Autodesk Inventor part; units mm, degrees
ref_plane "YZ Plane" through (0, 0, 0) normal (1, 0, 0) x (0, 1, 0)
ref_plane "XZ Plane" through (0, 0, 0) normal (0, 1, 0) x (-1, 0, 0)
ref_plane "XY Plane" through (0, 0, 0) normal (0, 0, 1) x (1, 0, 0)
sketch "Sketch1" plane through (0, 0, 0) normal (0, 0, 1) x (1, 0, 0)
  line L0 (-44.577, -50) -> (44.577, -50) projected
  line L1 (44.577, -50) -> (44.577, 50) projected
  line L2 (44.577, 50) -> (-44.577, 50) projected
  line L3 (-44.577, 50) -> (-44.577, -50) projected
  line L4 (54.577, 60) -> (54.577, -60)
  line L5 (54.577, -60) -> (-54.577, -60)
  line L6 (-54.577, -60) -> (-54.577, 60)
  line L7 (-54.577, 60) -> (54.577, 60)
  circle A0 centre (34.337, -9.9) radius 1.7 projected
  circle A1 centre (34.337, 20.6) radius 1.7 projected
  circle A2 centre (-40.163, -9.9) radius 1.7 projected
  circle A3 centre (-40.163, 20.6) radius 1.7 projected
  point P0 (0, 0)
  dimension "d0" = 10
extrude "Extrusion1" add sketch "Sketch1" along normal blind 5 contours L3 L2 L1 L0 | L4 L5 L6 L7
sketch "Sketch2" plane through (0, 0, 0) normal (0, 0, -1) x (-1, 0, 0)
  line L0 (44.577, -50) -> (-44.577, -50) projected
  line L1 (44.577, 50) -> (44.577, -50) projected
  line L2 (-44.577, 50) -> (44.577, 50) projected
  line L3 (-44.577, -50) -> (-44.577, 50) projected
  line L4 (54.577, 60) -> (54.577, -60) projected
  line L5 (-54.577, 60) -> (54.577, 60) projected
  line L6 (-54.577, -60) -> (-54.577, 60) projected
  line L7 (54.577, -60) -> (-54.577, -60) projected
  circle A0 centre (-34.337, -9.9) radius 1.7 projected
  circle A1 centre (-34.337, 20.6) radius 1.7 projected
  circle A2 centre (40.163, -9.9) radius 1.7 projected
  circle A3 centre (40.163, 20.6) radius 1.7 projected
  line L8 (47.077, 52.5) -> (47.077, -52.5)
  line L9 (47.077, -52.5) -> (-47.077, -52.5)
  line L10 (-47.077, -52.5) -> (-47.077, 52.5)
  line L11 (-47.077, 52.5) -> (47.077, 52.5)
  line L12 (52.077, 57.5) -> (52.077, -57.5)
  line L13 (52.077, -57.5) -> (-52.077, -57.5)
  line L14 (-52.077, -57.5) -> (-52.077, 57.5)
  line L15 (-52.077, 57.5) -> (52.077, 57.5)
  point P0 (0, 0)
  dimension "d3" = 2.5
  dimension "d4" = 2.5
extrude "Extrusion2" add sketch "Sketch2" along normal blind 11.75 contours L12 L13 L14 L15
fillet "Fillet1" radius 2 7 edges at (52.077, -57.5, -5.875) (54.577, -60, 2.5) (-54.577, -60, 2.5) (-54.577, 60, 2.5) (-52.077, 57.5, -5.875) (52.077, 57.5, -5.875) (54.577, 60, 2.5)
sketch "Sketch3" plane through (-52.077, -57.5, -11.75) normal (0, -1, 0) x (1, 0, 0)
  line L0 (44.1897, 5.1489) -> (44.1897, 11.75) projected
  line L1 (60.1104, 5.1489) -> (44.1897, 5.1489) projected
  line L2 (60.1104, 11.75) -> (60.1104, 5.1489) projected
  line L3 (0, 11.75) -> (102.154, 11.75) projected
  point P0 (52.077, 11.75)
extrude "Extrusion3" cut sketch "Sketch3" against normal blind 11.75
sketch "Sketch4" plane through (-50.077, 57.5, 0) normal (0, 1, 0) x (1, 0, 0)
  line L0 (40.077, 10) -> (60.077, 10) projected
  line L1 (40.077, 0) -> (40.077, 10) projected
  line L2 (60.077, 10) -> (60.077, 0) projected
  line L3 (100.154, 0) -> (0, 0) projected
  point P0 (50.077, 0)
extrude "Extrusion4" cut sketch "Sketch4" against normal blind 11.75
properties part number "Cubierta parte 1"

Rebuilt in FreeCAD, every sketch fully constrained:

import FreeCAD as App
import Part
import Sketcher
from FreeCAD import Vector


def edges_at(feature, points):
    """Names of the edges that pass closest to the given points."""
    edges = feature.Shape.Edges
    near = lambda p: min(range(len(edges)), key=lambda i: edges[i].distToShape(Part.Vertex(*p))[0])
    return sorted({f"Edge{near(p) + 1}" for p in points})


def add_polygon(sketch, points):
    """Adds a closed chain of lines whose ends are joined by coincident constraints."""
    first, n = sketch.GeometryCount, len(points)
    for a, b in zip(points, points[1:] + points[:1]):
        sketch.addGeometry(Part.LineSegment(App.Vector(*a, 0), App.Vector(*b, 0)), False)
    for i in range(n):
        sketch.addConstraint(Sketcher.Constraint("Coincident", first + i, 2, first + (i + 1) % n, 1))

doc = App.newDocument("Part")
body = doc.addObject("PartDesign::Body", "Body")

# Sketch on XY plane
sketch1 = body.newObject("Sketcher::SketchObject", "Sketch")
sketch1.AttachmentSupport = (doc.getObject("XY_Plane"), [""])
sketch1.MapMode = "FlatFace"
add_polygon(sketch1, [(54.577, -60), (54.577, 60), (-54.577, 60), (-54.577, -60)])  # lines 0-3
sketch1.addGeometry(Part.Circle(Vector(-40.163, -9.9, 0), Vector(0, 0, 1), 1.7), False)  # 4
sketch1.addGeometry(Part.Circle(Vector(34.337, -9.9, 0), Vector(0, 0, 1), 1.7), False)  # 5
sketch1.addGeometry(Part.Circle(Vector(-40.163, 20.6, 0), Vector(0, 0, 1), 1.7), False)  # 6
sketch1.addGeometry(Part.Circle(Vector(34.337, 20.6, 0), Vector(0, 0, 1), 1.7), False)  # 7
sketch1.addConstraint([
    Sketcher.Constraint("Vertical", 0),
    Sketcher.Constraint("Horizontal", 1),
    Sketcher.Constraint("Vertical", 2),
    Sketcher.Constraint("Horizontal", 3),
    Sketcher.Constraint("Equal", 4, 5),
    Sketcher.Constraint("Equal", 5, 6),
    Sketcher.Constraint("Equal", 6, 7),
    Sketcher.Constraint("Symmetric", 0, 2, 2, 2, -1, 1),
    Sketcher.Constraint("Horizontal", 4, 3, 5, 3),
    Sketcher.Constraint("Horizontal", 6, 3, 7, 3),
    Sketcher.Constraint("Vertical", 4, 3, 6, 3),
    Sketcher.Constraint("Vertical", 5, 3, 7, 3),
    Sketcher.Constraint("Diameter", 4, 3.4),
    Sketcher.Constraint("DistanceY", 0, 1, 0, 2, 120.0),
    Sketcher.Constraint("DistanceY", 4, 3, -1, 1, 9.9),
    Sketcher.Constraint("DistanceY", -1, 1, 6, 3, 20.6),
    Sketcher.Constraint("DistanceX", 4, 3, 5, 3, 74.5),
    Sketcher.Constraint("DistanceX", 1, 2, 1, 1, 109.154),
    Sketcher.Constraint("DistanceX", 7, 3, 0, 2, 20.24),
])
pad1 = body.newObject("PartDesign::Pad", "Pad")
pad1.Profile = sketch1
pad1.Length = 5

# Sketch on XY plane
sketch2 = body.newObject("Sketcher::SketchObject", "Sketch001")
sketch2.AttachmentSupport = (doc.getObject("XY_Plane"), [""])
sketch2.MapMode = "FlatFace"
add_polygon(sketch2, [(-52.077, -57.5), (-52.077, 57.5), (52.077, 57.5), (52.077, -57.5)])  # lines 0-3
add_polygon(sketch2, [(47.077, 52.5), (-47.077, 52.5), (-47.077, -52.5), (47.077, -52.5)])  # lines 4-7
sketch2.addConstraint([
    Sketcher.Constraint("Vertical", 0),
    Sketcher.Constraint("Horizontal", 1),
    Sketcher.Constraint("Vertical", 2),
    Sketcher.Constraint("Horizontal", 3),
    Sketcher.Constraint("Horizontal", 4),
    Sketcher.Constraint("Vertical", 5),
    Sketcher.Constraint("Horizontal", 6),
    Sketcher.Constraint("Vertical", 7),
    Sketcher.Constraint("Symmetric", 0, 2, 2, 2, -1, 1),
    Sketcher.Constraint("Symmetric", 4, 2, 6, 2, -1, 1),
    Sketcher.Constraint("DistanceY", 0, 1, 0, 2, 115.0),
    Sketcher.Constraint("DistanceY", 5, 2, 5, 1, 105.0),
    Sketcher.Constraint("DistanceX", 0, 2, 4, 2, 5.0),
    Sketcher.Constraint("DistanceX", 1, 1, 1, 2, 104.154),
])
pad2 = body.newObject("PartDesign::Pad", "Pad001")
pad2.Profile = sketch2
pad2.Length = 11.75
pad2.Reversed = True
doc.recompute()

fillet = body.newObject("PartDesign::Fillet", "Fillet")
fillet.Base = (pad2, edges_at(pad2, [
    (52.077, -57.5, -5.875),
    (54.577, -60, 2.5),
    (-54.577, -60, 2.5),
    (-54.577, 60, 2.5),
    (-52.077, 57.5, -5.875),
    (52.077, 57.5, -5.875),
    (54.577, 60, 2.5),
]))
fillet.Radius = 2

# Sketch on XZ plane
sketch3 = body.newObject("Sketcher::SketchObject", "Sketch002")
sketch3.AttachmentSupport = (doc.getObject("XZ_Plane"), [""])
sketch3.MapMode = "FlatFace"
sketch3.AttachmentOffset = App.Placement(Vector(0, 0, 57.5), App.Rotation())
add_polygon(sketch3, [(-7.8873, 0), (-7.8873, -6.6011), (8.0334, -6.6011), (8.0334, 0)])  # lines 0-3
sketch3.addConstraint([
    Sketcher.Constraint("Vertical", 0),
    Sketcher.Constraint("Horizontal", 1),
    Sketcher.Constraint("Vertical", 2),
    Sketcher.Constraint("Horizontal", 3),
    Sketcher.Constraint("PointOnObject", 2, 2, -1),
    Sketcher.Constraint("DistanceY", 0, 2, 0, 1, 6.601),
    Sketcher.Constraint("DistanceX", 1, 1, 1, 2, 15.9207),
    Sketcher.Constraint("DistanceX", 0, 2, -1, 1, 7.8873),
])
pocket1 = body.newObject("PartDesign::Pocket", "Pocket")
pocket1.Profile = sketch3
pocket1.Length = 11.75

# Sketch on XZ plane
sketch4 = body.newObject("Sketcher::SketchObject", "Sketch003")
sketch4.AttachmentSupport = (doc.getObject("XZ_Plane"), [""])
sketch4.MapMode = "FlatFace"
sketch4.AttachmentOffset = App.Placement(Vector(0, 0, -57.5), App.Rotation())
add_polygon(sketch4, [(10, -10), (-10, -10), (-10, 0), (10, 0)])  # lines 0-3
sketch4.addConstraint([
    Sketcher.Constraint("Horizontal", 0),
    Sketcher.Constraint("Vertical", 1),
    Sketcher.Constraint("Horizontal", 2),
    Sketcher.Constraint("Vertical", 3),
    Sketcher.Constraint("Symmetric", 1, 2, 2, 2, -1, 1),
    Sketcher.Constraint("DistanceX", 0, 2, 0, 1, 20.0),
    Sketcher.Constraint("DistanceY", 1, 1, 1, 2, 10.0),
])
pocket2 = body.newObject("PartDesign::Pocket", "Pocket001")
pocket2.Profile = sketch4
pocket2.Length = 11.75
pocket2.Reversed = True

doc.recompute()
